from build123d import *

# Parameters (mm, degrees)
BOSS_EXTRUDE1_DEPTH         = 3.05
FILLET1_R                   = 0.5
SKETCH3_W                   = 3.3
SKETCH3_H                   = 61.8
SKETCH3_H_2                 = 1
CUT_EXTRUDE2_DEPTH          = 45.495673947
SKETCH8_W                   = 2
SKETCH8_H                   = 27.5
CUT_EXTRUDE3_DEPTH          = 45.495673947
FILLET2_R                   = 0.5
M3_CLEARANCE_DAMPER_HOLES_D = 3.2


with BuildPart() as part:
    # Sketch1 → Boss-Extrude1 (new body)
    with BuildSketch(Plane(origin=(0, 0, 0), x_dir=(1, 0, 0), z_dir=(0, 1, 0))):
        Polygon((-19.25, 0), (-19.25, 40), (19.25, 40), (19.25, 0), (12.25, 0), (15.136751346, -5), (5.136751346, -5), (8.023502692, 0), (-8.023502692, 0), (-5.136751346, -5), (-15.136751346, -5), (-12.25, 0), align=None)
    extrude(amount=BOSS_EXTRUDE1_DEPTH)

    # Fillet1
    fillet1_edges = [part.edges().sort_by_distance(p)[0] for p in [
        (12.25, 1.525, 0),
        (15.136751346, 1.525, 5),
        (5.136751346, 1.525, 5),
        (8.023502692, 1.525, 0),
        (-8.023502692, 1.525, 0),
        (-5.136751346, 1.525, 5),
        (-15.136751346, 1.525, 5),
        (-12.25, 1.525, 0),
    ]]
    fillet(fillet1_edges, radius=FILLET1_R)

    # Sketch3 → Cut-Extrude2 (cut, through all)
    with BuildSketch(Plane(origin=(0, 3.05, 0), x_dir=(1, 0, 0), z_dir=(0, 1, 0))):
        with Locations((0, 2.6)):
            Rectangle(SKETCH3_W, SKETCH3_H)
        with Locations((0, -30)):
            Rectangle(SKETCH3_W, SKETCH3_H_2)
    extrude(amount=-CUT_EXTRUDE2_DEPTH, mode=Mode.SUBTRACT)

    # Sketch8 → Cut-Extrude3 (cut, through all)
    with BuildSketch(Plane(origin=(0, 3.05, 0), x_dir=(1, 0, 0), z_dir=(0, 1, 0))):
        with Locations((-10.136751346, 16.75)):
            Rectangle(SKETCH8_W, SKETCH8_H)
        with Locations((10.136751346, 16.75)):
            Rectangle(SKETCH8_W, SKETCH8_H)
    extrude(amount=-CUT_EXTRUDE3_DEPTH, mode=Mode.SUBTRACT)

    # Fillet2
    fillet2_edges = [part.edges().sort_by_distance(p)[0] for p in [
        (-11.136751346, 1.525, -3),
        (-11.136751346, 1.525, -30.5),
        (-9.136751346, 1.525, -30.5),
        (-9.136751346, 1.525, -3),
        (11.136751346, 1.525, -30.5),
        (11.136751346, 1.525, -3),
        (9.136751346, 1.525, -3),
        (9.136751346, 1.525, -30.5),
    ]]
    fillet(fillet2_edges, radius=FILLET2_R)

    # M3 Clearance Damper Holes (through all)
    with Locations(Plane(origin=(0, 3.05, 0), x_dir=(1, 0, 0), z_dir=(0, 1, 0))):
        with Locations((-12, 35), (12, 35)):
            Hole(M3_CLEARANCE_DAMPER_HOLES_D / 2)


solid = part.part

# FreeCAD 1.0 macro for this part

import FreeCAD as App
import Part
import Sketcher
Q = App.Units.Quantity


def edges_at(feature, points):
    """Names of the edges that pass closest to the given points."""
    edges = feature.Shape.Edges
    near = lambda p: min(range(len(edges)), key=lambda i: edges[i].distToShape(Part.Vertex(*p))[0])
    return sorted({f"Edge{near(p) + 1}" for p in points})


def add_polygon(sketch, points):
    """Adds a closed chain of lines whose ends are joined by coincident constraints."""
    first, n = sketch.GeometryCount, len(points)
    for a, b in zip(points, points[1:] + points[:1]):
        sketch.addGeometry(Part.LineSegment(App.Vector(*a, 0), App.Vector(*b, 0)), False)
    for i in range(n):
        sketch.addConstraint(Sketcher.Constraint("Coincident", first + i, 2, first + (i + 1) % n, 1))

doc = App.newDocument("Part")
body = doc.addObject("PartDesign::Body", "Body")

# Sketch on XZ plane
sketch1 = doc.addObject("Sketcher::SketchObject", "Sketch")
body.addObject(sketch1)
sketch1.AttachmentSupport = (doc.XZ_Plane, [""])
sketch1.MapMode = "FlatFace"
add_polygon(sketch1, [(-19, -40), (-19, 0), (-12, 0), (-15, 5), (-5, 5), (-8, 0), (8, 0), (5, 5), (15, 5), (12, 0), (19, 0), (19, -40)])  # lines 0-11
sketch1.addConstraint(Sketcher.Constraint("Vertical", 0))
sketch1.addConstraint(Sketcher.Constraint("Horizontal", 1))
sketch1.addConstraint(Sketcher.Constraint("Horizontal", 3))
sketch1.addConstraint(Sketcher.Constraint("Horizontal", 5))
sketch1.addConstraint(Sketcher.Constraint("Horizontal", 7))
sketch1.addConstraint(Sketcher.Constraint("Horizontal", 9))
sketch1.addConstraint(Sketcher.Constraint("Vertical", 10))
sketch1.addConstraint(Sketcher.Constraint("Horizontal", 11))
sketch1.addConstraint(Sketcher.Constraint("Symmetric", 4, 2, 5, 2, -1, 1))
sketch1.addConstraint(Sketcher.Constraint("Symmetric", 1, 2, 8, 2, -1, 1))
sketch1.addConstraint(Sketcher.Constraint("Symmetric", 3, 2, 6, 2, -2))
sketch1.addConstraint(Sketcher.Constraint("Symmetric", 0, 2, 9, 2, -2))
sketch1.addConstraint(Sketcher.Constraint("Parallel", 2, 6))
sketch1.addConstraint(Sketcher.Constraint("Parallel", 4, 8))
sketch1.addConstraint(Sketcher.Constraint("DistanceX", 1, 1, 1, 2, 7.0))
sketch1.addConstraint(Sketcher.Constraint("DistanceX", 3, 1, 3, 2, 10.0))
sketch1.addConstraint(Sketcher.Constraint("DistanceY", 0, 1, 0, 2, 40.0))
sketch1.addConstraint(Sketcher.Constraint("Angle", 2, Q("120 deg")))
sketch1.addConstraint(Sketcher.Constraint("DistanceX", 11, 2, 11, 1, 38.5))
sketch1.addConstraint(Sketcher.Constraint("DistanceY", -1, 1, 2, 2, 5.0))
pad1 = doc.addObject("PartDesign::Pad", "Pad")
body.addObject(pad1)
pad1.Profile = sketch1
pad1.Length = 3.05
pad1.Reversed = True
doc.recompute()

fillet = doc.addObject("PartDesign::Fillet", "Fillet")
body.addObject(fillet)
fillet.Base = (pad1, edges_at(pad1, [
    (12.25, 1.525, 0),
    (15.137, 1.525, 5),
    (5.137, 1.525, 5),
    (8.024, 1.525, 0),
    (-8.024, 1.525, 0),
    (-5.137, 1.525, 5),
    (-15.137, 1.525, 5),
    (-12.25, 1.525, 0),
]))
fillet.Radius = 0.5

# Sketch on XZ plane
sketch2 = doc.addObject("Sketcher::SketchObject", "Sketch001")
body.addObject(sketch2)
sketch2.AttachmentSupport = (doc.XZ_Plane, [""])
sketch2.MapMode = "FlatFace"
sketch2.AttachmentOffset = App.Placement(App.Vector(0, 0, -3.05), App.Rotation())
add_polygon(sketch2, [(-1.6, -33.5), (-1.6, 28.3), (1.6, 28.3), (1.6, -33.5)])  # lines 0-3
add_polygon(sketch2, [(-1.6, 29.5), (-1.6, 30.5), (1.6, 30.5), (1.6, 29.5)])  # lines 4-7
sketch2.addConstraint(Sketcher.Constraint("Vertical", 0))
sketch2.addConstraint(Sketcher.Constraint("Horizontal", 1))
sketch2.addConstraint(Sketcher.Constraint("Vertical", 2))
sketch2.addConstraint(Sketcher.Constraint("Horizontal", 3))
sketch2.addConstraint(Sketcher.Constraint("Vertical", 4))
sketch2.addConstraint(Sketcher.Constraint("Horizontal", 5))
sketch2.addConstraint(Sketcher.Constraint("Vertical", 6))
sketch2.addConstraint(Sketcher.Constraint("Horizontal", 7))
sketch2.addConstraint(Sketcher.Constraint("Vertical", 3, 2, 4, 2))
sketch2.addConstraint(Sketcher.Constraint("Vertical", 2, 2, 5, 2))
sketch2.addConstraint(Sketcher.Constraint("DistanceY", 4, 1, 4, 2, 1.0))
sketch2.addConstraint(Sketcher.Constraint("DistanceX", 1, 1, 1, 2, 3.3))
sketch2.addConstraint(Sketcher.Constraint("DistanceY", 0, 1, 0, 2, 61.8))
sketch2.addConstraint(Sketcher.Constraint("DistanceY", 3, 2, 4, 2, 64.0))
sketch2.addConstraint(Sketcher.Constraint("DistanceY", -1, 1, 0, 2, 28.3))
sketch2.addConstraint(Sketcher.Constraint("DistanceX", 0, 2, -1, 1, 1.65))
pocket1 = doc.addObject("PartDesign::Pocket", "Pocket")
body.addObject(pocket1)
pocket1.Profile = sketch2
pocket1.Type = "ThroughAll"
pocket1.Reversed = True

# Sketch on XZ plane
sketch3 = doc.addObject("Sketcher::SketchObject", "Sketch002")
body.addObject(sketch3)
sketch3.AttachmentSupport = (doc.XZ_Plane, [""])
sketch3.MapMode = "FlatFace"
sketch3.AttachmentOffset = App.Placement(App.Vector(0, 0, -3.05), App.Rotation())
add_polygon(sketch3, [(-11.1, -30.5), (-11.1, -3), (-9.1, -3), (-9.1, -30.5)])  # lines 0-3
add_polygon(sketch3, [(9.1, -30.5), (9.1, -3), (11.1, -3), (11.1, -30.5)])  # lines 4-7
sketch3.addConstraint(Sketcher.Constraint("Vertical", 0))
sketch3.addConstraint(Sketcher.Constraint("Horizontal", 1))
sketch3.addConstraint(Sketcher.Constraint("Vertical", 2))
sketch3.addConstraint(Sketcher.Constraint("Horizontal", 3))
sketch3.addConstraint(Sketcher.Constraint("Vertical", 4))
sketch3.addConstraint(Sketcher.Constraint("Horizontal", 5))
sketch3.addConstraint(Sketcher.Constraint("Vertical", 6))
sketch3.addConstraint(Sketcher.Constraint("Horizontal", 7))
sketch3.addConstraint(Sketcher.Constraint("Symmetric", 1, 2, 4, 2, -2))
sketch3.addConstraint(Sketcher.Constraint("Symmetric", 3, 2, 6, 2, -2))
sketch3.addConstraint(Sketcher.Constraint("DistanceX", 1, 1, 1, 2, 2.0))
sketch3.addConstraint(Sketcher.Constraint("DistanceY", 0, 1, 0, 2, 27.5))
sketch3.addConstraint(Sketcher.Constraint("DistanceY", 0, 2, -1, 1, 3.0))
sketch3.addConstraint(Sketcher.Constraint("DistanceX", 0, 2, -1, 1, 11.136751))
pocket2 = doc.addObject("PartDesign::Pocket", "Pocket001")
body.addObject(pocket2)
pocket2.Profile = sketch3
pocket2.Type = "ThroughAll"
pocket2.Reversed = True
doc.recompute()

fillet2 = doc.addObject("PartDesign::Fillet", "Fillet001")
body.addObject(fillet2)
fillet2.Base = (pocket2, edges_at(pocket2, [
    (-11.137, 1.525, -3),
    (-11.137, 1.525, -30.5),
    (-9.137, 1.525, -30.5),
    (-9.137, 1.525, -3),
    (11.137, 1.525, -30.5),
    (11.137, 1.525, -3),
    (9.137, 1.525, -3),
    (9.137, 1.525, -30.5),
]))
fillet2.Radius = 0.5

# Sketch on XZ plane
sketch4 = doc.addObject("Sketcher::SketchObject", "Sketch003")
body.addObject(sketch4)
sketch4.AttachmentSupport = (doc.XZ_Plane, [""])
sketch4.MapMode = "FlatFace"
sketch4.AttachmentOffset = App.Placement(App.Vector(0, 0, -3.05), App.Rotation())
sketch4.addGeometry(Part.Circle(App.Vector(-12, -35, 0), App.Vector(0, 0, 1), 1.6), False)
sketch4.addGeometry(Part.Circle(App.Vector(12, -35, 0), App.Vector(0, 0, 1), 1.6), False)
sketch4.addConstraint(Sketcher.Constraint("Equal", 0, 1))
sketch4.addConstraint(Sketcher.Constraint("Symmetric", 0, 3, 1, 3, -2))
sketch4.addConstraint(Sketcher.Constraint("Diameter", 0, 3.2))
sketch4.addConstraint(Sketcher.Constraint("DistanceX", 0, 3, -1, 1, 12.0))
sketch4.addConstraint(Sketcher.Constraint("DistanceY", 0, 3, -1, 1, 35.0))
doc.recompute()
hole = doc.addObject("PartDesign::Hole", "Hole")
body.addObject(hole)
hole.Profile = sketch4
hole.ThreadType = "None"
hole.Diameter = 3.2
hole.DepthType = "ThroughAll"
hole.Reversed = True

doc.recompute()
